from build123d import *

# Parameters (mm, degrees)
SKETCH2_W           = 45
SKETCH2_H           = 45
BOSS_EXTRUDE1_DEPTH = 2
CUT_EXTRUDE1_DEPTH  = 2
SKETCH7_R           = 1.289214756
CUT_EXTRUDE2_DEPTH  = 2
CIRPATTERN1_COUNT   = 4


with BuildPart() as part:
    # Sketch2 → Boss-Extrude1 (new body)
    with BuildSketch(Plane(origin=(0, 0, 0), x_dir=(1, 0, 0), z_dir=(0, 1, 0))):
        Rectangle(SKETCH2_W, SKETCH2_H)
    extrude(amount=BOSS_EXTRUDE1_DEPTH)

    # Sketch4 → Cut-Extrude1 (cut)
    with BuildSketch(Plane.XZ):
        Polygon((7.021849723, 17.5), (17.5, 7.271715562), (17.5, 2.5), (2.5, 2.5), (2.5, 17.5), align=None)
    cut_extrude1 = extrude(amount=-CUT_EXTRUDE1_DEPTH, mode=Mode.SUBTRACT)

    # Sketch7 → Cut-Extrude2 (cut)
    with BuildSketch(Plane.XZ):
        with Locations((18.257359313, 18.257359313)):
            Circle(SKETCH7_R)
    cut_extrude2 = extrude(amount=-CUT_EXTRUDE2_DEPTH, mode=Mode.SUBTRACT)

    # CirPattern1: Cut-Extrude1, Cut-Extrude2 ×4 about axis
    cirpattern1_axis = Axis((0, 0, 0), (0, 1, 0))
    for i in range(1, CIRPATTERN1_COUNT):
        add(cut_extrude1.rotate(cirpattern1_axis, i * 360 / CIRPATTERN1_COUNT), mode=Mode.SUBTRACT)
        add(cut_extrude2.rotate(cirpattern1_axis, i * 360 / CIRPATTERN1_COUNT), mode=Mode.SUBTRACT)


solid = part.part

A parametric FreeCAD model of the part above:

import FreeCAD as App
import Part
import Sketcher

V = App.Vector
Q = App.Units.Quantity


def add_polygon(sketch, points):
    """Adds a closed chain of lines whose ends are joined by coincident constraints."""
    first, n = sketch.GeometryCount, len(points)
    for a, b in zip(points, points[1:] + points[:1]):
        sketch.addGeometry(Part.LineSegment(App.Vector(*a, 0), App.Vector(*b, 0)), False)
    for i in range(n):
        sketch.addConstraint(Sketcher.Constraint("Coincident", first + i, 2, first + (i + 1) % n, 1))

doc = App.newDocument("Part")
body = doc.addObject("PartDesign::Body", "Body")

sketch1 = doc.addObject("Sketcher::SketchObject", "Sketch")
body.addObject(sketch1)
sketch1.AttachmentSupport = (doc.XZ_Plane, [""])
sketch1.MapMode = "FlatFace"
add_polygon(sketch1, [(-22, -22), (-22, 22), (22, 22), (22, -22)])
sketch1.addConstraint([
    Sketcher.Constraint("Vertical", 0),
    Sketcher.Constraint("Horizontal", 1),
    Sketcher.Constraint("Vertical", 2),
    Sketcher.Constraint("Horizontal", 3),
    Sketcher.Constraint("Symmetric", 0, 2, 2, 2, -1, 1),
    Sketcher.Constraint("Equal", 3, 0),
    Sketcher.Constraint("DistanceX", 1, 1, 1, 2, Q("45 mm")),
])
pad1 = doc.addObject("PartDesign::Pad", "Pad")
body.addObject(pad1)
pad1.Profile = sketch1
pad1.Length = 2
pad1.Reversed = True

sketch2 = doc.addObject("Sketcher::SketchObject", "Sketch001")
body.addObject(sketch2)
sketch2.AttachmentSupport = (doc.XZ_Plane, [""])
sketch2.MapMode = "FlatFace"
add_polygon(sketch2, [(17.5, 7.3), (7, 17.5), (2.5, 17.5), (2.5, 2.5), (17.5, 2.5)])
sketch2.addConstraint([
    Sketcher.Constraint("Horizontal", 1),
    Sketcher.Constraint("Vertical", 2),
    Sketcher.Constraint("Horizontal", 3),
    Sketcher.Constraint("Vertical", 4),
    Sketcher.Constraint("Equal", 3, 2),
    Sketcher.Constraint("DistanceX", 3, 1, 3, 2, Q("15 mm")),
    Sketcher.Constraint("DistanceY", -1, 1, 0, 2, Q("17.5 mm")),
    Sketcher.Constraint("DistanceX", -1, 1, 1, 2, Q("2.5 mm")),
    Sketcher.Constraint("DistanceX", 1, 2, 1, 1, Q("4.52185 mm")),
    Sketcher.Constraint("DistanceY", 4, 1, 4, 2, Q("4.771716 mm")),
])
pocket1 = doc.addObject("PartDesign::Pocket", "Pocket")
body.addObject(pocket1)
pocket1.Profile = sketch2
pocket1.Length = 2

sketch3 = doc.addObject("Sketcher::SketchObject", "Sketch002")
body.addObject(sketch3)
sketch3.AttachmentSupport = (doc.XZ_Plane, [""])
sketch3.MapMode = "FlatFace"
sketch3.addGeometry(Part.Circle(V(18.3, 18.3, 0), V(0, 0, 1), 1.3), False)
sketch3.addConstraint([
    Sketcher.Constraint("Diameter", 0, Q("2.57843 mm")),
    Sketcher.Constraint("DistanceX", -1, 1, 0, 3, Q("18.257359 mm")),
    Sketcher.Constraint("DistanceY", -1, 1, 0, 3, Q("18.257359 mm")),
])
pocket2 = doc.addObject("PartDesign::Pocket", "Pocket001")
body.addObject(pocket2)
pocket2.Profile = sketch3
pocket2.Length = 2
doc.recompute()

polarpattern = doc.addObject("PartDesign::PolarPattern", "PolarPattern")
body.addObject(polarpattern)
polarpattern.Originals = [pocket1, pocket2]
polarpattern.Axis = (doc.Y_Axis, [""])
polarpattern.Angle = 360
polarpattern.Occurrences = 4
body.Tip = polarpattern

doc.recompute()
